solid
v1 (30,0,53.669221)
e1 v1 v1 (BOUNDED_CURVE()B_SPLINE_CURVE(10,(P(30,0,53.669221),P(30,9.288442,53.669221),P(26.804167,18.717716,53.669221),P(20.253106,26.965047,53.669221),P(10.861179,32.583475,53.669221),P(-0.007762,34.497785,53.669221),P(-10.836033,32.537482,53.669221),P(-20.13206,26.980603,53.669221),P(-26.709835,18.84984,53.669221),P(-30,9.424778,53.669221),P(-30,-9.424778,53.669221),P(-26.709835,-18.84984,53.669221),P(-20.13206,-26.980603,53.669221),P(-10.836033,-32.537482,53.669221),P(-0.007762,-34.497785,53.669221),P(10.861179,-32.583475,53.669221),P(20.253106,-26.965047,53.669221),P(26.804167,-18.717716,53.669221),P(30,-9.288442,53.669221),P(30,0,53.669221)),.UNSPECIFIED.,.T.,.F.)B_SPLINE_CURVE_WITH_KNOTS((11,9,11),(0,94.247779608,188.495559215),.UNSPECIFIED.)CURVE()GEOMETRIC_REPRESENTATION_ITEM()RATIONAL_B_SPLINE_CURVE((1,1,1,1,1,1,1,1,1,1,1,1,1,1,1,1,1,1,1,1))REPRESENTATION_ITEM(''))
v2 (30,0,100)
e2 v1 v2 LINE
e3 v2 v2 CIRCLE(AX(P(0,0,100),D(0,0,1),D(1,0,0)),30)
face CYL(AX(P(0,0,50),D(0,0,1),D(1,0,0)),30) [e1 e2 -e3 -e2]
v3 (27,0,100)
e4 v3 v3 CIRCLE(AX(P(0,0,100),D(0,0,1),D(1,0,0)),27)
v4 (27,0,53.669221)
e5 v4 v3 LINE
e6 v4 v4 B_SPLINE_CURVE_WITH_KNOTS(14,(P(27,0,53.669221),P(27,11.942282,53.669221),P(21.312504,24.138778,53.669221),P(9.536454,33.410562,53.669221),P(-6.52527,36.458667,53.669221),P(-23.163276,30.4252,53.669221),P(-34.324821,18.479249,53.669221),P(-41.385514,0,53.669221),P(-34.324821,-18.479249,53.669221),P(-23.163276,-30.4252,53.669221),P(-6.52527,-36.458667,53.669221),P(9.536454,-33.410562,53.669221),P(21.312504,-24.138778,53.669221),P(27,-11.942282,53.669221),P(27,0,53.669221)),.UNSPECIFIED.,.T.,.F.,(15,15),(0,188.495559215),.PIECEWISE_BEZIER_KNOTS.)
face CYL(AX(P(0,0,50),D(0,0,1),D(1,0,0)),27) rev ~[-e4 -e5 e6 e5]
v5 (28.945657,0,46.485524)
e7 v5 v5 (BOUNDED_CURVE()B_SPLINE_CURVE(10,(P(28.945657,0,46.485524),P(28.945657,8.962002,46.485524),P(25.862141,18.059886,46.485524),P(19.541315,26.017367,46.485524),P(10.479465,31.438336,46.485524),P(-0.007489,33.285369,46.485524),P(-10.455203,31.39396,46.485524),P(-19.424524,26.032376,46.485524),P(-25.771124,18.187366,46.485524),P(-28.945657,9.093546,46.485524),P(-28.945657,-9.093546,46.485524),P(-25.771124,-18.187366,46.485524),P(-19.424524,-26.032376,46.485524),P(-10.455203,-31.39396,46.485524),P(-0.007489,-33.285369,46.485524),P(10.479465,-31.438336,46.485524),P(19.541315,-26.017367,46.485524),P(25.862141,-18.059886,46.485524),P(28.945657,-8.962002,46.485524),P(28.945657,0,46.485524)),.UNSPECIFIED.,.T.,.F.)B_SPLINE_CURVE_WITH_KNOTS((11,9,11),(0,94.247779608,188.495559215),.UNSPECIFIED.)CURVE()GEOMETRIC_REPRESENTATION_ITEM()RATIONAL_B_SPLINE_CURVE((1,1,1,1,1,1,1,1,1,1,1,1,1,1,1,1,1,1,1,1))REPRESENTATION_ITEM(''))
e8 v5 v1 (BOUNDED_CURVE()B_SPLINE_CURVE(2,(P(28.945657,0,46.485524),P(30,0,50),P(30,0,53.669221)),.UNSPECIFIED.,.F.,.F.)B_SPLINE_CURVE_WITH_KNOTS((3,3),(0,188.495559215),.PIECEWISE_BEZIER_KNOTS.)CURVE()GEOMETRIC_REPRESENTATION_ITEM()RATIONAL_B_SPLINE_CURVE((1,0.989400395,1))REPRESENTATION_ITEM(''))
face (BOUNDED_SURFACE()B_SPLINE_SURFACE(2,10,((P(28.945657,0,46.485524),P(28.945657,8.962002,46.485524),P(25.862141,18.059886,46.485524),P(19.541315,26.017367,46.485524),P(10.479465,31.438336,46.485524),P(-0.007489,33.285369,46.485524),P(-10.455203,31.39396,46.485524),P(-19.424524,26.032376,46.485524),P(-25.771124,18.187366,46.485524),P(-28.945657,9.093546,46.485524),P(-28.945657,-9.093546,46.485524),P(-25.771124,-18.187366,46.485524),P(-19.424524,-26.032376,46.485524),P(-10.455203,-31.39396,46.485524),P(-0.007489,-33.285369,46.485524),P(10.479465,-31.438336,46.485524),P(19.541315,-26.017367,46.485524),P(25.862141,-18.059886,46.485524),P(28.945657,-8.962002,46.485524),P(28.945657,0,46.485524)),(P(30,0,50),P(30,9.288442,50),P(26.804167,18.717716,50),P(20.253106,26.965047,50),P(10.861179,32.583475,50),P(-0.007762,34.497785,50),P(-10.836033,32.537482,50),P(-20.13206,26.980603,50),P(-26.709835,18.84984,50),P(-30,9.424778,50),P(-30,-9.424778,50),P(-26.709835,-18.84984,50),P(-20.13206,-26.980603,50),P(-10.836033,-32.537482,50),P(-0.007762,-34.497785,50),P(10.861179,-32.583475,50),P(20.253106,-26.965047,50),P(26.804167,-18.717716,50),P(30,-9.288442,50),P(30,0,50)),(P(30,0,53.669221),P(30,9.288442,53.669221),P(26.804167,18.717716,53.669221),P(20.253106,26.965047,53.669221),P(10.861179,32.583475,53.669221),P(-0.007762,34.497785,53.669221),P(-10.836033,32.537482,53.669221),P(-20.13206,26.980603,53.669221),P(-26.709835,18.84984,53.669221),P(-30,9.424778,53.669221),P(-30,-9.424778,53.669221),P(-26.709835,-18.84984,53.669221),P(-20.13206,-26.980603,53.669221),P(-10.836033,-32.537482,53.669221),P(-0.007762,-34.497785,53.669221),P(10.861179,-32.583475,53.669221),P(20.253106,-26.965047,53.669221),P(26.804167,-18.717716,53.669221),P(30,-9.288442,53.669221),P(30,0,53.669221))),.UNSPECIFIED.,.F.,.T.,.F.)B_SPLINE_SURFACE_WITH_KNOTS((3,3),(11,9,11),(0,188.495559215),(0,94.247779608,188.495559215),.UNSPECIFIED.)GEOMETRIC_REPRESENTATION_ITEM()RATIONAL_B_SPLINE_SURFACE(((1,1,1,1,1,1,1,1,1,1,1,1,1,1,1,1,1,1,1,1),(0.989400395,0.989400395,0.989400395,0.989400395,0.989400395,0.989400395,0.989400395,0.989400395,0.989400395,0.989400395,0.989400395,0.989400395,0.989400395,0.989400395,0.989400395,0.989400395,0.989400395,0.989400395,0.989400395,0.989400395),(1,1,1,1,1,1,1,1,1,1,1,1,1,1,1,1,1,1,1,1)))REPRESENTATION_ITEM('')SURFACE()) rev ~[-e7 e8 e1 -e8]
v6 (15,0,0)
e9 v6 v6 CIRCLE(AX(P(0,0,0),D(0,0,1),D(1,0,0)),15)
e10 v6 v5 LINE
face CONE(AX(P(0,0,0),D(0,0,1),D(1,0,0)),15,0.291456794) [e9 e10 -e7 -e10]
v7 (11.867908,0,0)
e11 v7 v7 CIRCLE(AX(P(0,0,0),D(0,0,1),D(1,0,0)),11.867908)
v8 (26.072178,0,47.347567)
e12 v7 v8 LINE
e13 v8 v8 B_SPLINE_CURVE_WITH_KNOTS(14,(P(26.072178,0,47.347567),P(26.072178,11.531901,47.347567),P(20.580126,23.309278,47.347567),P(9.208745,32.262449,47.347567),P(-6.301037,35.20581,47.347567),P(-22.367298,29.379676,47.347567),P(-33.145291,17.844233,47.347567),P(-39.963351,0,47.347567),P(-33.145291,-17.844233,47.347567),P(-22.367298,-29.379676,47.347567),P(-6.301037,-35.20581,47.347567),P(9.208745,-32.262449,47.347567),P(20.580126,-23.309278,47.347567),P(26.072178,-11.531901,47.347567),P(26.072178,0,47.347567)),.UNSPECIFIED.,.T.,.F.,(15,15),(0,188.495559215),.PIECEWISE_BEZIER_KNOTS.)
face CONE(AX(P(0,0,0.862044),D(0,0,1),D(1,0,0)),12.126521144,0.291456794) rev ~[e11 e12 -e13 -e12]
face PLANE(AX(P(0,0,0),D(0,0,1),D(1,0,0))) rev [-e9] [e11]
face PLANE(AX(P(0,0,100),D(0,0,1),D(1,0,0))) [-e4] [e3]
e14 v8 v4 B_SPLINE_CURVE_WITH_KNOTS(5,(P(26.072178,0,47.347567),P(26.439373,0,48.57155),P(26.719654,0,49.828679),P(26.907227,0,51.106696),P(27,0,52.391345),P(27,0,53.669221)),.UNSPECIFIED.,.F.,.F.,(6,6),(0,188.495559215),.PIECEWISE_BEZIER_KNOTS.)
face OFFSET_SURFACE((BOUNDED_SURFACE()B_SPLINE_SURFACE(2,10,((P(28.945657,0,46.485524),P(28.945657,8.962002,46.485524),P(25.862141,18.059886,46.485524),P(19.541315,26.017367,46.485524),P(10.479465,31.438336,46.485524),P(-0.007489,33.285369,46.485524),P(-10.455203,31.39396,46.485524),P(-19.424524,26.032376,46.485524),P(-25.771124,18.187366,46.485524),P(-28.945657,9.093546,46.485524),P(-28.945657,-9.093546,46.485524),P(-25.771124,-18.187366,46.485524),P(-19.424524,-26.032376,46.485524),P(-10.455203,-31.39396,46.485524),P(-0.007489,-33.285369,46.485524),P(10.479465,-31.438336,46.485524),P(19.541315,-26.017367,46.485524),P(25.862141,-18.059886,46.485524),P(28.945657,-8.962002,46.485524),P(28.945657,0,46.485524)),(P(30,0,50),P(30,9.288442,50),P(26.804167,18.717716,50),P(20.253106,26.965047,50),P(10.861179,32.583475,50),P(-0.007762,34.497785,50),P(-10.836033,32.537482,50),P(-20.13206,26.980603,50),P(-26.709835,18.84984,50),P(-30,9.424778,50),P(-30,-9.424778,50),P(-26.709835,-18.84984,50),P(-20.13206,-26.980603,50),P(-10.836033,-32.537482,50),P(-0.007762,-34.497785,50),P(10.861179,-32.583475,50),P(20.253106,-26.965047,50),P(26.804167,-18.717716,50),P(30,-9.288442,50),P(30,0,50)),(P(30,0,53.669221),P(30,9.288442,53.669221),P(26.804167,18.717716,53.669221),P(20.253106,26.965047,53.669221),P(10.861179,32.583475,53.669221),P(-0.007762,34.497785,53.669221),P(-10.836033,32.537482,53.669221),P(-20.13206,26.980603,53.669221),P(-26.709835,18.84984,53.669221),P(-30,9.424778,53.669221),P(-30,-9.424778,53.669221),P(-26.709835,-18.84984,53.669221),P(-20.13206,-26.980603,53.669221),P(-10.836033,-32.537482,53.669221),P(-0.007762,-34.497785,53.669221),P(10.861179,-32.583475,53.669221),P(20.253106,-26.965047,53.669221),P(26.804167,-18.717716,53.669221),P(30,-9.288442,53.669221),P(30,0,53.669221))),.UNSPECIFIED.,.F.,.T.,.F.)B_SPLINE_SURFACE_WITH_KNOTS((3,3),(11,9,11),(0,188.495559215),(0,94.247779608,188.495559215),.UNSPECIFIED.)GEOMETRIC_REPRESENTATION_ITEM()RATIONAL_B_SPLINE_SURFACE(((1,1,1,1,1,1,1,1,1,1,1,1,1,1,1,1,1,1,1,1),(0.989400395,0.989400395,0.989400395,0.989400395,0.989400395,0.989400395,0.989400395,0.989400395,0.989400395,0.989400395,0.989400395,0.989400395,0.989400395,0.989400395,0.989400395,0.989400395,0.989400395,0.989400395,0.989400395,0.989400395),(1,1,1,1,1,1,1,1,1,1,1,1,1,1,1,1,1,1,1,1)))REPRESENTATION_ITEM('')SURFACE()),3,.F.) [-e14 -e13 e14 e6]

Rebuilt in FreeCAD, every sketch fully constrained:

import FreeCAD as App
import Part
import Sketcher
Q = App.Units.Quantity


def edges_at(feature, points):
    """Names of the edges that pass closest to the given points."""
    edges = feature.Shape.Edges
    near = lambda p: min(range(len(edges)), key=lambda i: edges[i].distToShape(Part.Vertex(*p))[0])
    return sorted({f"Edge{near(p) + 1}" for p in points})


def faces_at(feature, points):
    """Names of the faces that lie closest to the given points."""
    faces = feature.Shape.Faces
    near = lambda p: min(range(len(faces)), key=lambda i: faces[i].distToShape(Part.Vertex(*p))[0])
    return sorted({f"Face{near(p) + 1}" for p in points})


def add_polygon(sketch, points):
    """Adds a closed chain of lines whose ends are joined by coincident constraints."""
    first, n = sketch.GeometryCount, len(points)
    for a, b in zip(points, points[1:] + points[:1]):
        sketch.addGeometry(Part.LineSegment(App.Vector(*a, 0), App.Vector(*b, 0)), False)
    for i in range(n):
        sketch.addConstraint(Sketcher.Constraint("Coincident", first + i, 2, first + (i + 1) % n, 1))

doc = App.newDocument("Part")
body = doc.addObject("PartDesign::Body", "Body")

# Sketch on XZ plane
sketch1 = body.newObject("Sketcher::SketchObject", "Sketch")
sketch1.AttachmentSupport = (doc.getObject("XZ_Plane"), [""])
sketch1.MapMode = "FlatFace"
add_polygon(sketch1, [(0, 100), (0, 0), (15, 0), (30, 50), (30, 100)])  # lines 0-4
sketch1.addConstraint([
    Sketcher.Constraint("Vertical", 0),
    Sketcher.Constraint("Horizontal", 1),
    Sketcher.Constraint("Vertical", 3),
    Sketcher.Constraint("Horizontal", 4),
    Sketcher.Constraint("Coincident", 0, 2, -1, 1),
    Sketcher.Constraint("DistanceX", 1, 1, 1, 2, Q("15 mm")),
    Sketcher.Constraint("DistanceX", 4, 2, 4, 1, Q("30 mm")),
    Sketcher.Constraint("DistanceY", 0, 2, 0, 1, Q("100 mm")),
    Sketcher.Constraint("DistanceY", 3, 1, 3, 2, Q("50 mm")),
])
revolution = body.newObject("PartDesign::Revolution", "Revolution")
revolution.Profile = sketch1
revolution.ReferenceAxis = (sketch1, ["V_Axis"])
revolution.Angle = 360
doc.recompute()

fillet = body.newObject("PartDesign::Fillet", "Fillet")
fillet.Base = (revolution, edges_at(revolution, [(-30, 0, 50)]))
fillet.Radius = 25
doc.recompute()

thickness = body.newObject("PartDesign::Thickness", "Thickness")
thickness.Base = (fillet, faces_at(fillet, [(0, 0, 100), (0, 0, 0)]))
thickness.Value = 3
thickness.Reversed = True
thickness.Join = "Arc"

doc.recompute()
